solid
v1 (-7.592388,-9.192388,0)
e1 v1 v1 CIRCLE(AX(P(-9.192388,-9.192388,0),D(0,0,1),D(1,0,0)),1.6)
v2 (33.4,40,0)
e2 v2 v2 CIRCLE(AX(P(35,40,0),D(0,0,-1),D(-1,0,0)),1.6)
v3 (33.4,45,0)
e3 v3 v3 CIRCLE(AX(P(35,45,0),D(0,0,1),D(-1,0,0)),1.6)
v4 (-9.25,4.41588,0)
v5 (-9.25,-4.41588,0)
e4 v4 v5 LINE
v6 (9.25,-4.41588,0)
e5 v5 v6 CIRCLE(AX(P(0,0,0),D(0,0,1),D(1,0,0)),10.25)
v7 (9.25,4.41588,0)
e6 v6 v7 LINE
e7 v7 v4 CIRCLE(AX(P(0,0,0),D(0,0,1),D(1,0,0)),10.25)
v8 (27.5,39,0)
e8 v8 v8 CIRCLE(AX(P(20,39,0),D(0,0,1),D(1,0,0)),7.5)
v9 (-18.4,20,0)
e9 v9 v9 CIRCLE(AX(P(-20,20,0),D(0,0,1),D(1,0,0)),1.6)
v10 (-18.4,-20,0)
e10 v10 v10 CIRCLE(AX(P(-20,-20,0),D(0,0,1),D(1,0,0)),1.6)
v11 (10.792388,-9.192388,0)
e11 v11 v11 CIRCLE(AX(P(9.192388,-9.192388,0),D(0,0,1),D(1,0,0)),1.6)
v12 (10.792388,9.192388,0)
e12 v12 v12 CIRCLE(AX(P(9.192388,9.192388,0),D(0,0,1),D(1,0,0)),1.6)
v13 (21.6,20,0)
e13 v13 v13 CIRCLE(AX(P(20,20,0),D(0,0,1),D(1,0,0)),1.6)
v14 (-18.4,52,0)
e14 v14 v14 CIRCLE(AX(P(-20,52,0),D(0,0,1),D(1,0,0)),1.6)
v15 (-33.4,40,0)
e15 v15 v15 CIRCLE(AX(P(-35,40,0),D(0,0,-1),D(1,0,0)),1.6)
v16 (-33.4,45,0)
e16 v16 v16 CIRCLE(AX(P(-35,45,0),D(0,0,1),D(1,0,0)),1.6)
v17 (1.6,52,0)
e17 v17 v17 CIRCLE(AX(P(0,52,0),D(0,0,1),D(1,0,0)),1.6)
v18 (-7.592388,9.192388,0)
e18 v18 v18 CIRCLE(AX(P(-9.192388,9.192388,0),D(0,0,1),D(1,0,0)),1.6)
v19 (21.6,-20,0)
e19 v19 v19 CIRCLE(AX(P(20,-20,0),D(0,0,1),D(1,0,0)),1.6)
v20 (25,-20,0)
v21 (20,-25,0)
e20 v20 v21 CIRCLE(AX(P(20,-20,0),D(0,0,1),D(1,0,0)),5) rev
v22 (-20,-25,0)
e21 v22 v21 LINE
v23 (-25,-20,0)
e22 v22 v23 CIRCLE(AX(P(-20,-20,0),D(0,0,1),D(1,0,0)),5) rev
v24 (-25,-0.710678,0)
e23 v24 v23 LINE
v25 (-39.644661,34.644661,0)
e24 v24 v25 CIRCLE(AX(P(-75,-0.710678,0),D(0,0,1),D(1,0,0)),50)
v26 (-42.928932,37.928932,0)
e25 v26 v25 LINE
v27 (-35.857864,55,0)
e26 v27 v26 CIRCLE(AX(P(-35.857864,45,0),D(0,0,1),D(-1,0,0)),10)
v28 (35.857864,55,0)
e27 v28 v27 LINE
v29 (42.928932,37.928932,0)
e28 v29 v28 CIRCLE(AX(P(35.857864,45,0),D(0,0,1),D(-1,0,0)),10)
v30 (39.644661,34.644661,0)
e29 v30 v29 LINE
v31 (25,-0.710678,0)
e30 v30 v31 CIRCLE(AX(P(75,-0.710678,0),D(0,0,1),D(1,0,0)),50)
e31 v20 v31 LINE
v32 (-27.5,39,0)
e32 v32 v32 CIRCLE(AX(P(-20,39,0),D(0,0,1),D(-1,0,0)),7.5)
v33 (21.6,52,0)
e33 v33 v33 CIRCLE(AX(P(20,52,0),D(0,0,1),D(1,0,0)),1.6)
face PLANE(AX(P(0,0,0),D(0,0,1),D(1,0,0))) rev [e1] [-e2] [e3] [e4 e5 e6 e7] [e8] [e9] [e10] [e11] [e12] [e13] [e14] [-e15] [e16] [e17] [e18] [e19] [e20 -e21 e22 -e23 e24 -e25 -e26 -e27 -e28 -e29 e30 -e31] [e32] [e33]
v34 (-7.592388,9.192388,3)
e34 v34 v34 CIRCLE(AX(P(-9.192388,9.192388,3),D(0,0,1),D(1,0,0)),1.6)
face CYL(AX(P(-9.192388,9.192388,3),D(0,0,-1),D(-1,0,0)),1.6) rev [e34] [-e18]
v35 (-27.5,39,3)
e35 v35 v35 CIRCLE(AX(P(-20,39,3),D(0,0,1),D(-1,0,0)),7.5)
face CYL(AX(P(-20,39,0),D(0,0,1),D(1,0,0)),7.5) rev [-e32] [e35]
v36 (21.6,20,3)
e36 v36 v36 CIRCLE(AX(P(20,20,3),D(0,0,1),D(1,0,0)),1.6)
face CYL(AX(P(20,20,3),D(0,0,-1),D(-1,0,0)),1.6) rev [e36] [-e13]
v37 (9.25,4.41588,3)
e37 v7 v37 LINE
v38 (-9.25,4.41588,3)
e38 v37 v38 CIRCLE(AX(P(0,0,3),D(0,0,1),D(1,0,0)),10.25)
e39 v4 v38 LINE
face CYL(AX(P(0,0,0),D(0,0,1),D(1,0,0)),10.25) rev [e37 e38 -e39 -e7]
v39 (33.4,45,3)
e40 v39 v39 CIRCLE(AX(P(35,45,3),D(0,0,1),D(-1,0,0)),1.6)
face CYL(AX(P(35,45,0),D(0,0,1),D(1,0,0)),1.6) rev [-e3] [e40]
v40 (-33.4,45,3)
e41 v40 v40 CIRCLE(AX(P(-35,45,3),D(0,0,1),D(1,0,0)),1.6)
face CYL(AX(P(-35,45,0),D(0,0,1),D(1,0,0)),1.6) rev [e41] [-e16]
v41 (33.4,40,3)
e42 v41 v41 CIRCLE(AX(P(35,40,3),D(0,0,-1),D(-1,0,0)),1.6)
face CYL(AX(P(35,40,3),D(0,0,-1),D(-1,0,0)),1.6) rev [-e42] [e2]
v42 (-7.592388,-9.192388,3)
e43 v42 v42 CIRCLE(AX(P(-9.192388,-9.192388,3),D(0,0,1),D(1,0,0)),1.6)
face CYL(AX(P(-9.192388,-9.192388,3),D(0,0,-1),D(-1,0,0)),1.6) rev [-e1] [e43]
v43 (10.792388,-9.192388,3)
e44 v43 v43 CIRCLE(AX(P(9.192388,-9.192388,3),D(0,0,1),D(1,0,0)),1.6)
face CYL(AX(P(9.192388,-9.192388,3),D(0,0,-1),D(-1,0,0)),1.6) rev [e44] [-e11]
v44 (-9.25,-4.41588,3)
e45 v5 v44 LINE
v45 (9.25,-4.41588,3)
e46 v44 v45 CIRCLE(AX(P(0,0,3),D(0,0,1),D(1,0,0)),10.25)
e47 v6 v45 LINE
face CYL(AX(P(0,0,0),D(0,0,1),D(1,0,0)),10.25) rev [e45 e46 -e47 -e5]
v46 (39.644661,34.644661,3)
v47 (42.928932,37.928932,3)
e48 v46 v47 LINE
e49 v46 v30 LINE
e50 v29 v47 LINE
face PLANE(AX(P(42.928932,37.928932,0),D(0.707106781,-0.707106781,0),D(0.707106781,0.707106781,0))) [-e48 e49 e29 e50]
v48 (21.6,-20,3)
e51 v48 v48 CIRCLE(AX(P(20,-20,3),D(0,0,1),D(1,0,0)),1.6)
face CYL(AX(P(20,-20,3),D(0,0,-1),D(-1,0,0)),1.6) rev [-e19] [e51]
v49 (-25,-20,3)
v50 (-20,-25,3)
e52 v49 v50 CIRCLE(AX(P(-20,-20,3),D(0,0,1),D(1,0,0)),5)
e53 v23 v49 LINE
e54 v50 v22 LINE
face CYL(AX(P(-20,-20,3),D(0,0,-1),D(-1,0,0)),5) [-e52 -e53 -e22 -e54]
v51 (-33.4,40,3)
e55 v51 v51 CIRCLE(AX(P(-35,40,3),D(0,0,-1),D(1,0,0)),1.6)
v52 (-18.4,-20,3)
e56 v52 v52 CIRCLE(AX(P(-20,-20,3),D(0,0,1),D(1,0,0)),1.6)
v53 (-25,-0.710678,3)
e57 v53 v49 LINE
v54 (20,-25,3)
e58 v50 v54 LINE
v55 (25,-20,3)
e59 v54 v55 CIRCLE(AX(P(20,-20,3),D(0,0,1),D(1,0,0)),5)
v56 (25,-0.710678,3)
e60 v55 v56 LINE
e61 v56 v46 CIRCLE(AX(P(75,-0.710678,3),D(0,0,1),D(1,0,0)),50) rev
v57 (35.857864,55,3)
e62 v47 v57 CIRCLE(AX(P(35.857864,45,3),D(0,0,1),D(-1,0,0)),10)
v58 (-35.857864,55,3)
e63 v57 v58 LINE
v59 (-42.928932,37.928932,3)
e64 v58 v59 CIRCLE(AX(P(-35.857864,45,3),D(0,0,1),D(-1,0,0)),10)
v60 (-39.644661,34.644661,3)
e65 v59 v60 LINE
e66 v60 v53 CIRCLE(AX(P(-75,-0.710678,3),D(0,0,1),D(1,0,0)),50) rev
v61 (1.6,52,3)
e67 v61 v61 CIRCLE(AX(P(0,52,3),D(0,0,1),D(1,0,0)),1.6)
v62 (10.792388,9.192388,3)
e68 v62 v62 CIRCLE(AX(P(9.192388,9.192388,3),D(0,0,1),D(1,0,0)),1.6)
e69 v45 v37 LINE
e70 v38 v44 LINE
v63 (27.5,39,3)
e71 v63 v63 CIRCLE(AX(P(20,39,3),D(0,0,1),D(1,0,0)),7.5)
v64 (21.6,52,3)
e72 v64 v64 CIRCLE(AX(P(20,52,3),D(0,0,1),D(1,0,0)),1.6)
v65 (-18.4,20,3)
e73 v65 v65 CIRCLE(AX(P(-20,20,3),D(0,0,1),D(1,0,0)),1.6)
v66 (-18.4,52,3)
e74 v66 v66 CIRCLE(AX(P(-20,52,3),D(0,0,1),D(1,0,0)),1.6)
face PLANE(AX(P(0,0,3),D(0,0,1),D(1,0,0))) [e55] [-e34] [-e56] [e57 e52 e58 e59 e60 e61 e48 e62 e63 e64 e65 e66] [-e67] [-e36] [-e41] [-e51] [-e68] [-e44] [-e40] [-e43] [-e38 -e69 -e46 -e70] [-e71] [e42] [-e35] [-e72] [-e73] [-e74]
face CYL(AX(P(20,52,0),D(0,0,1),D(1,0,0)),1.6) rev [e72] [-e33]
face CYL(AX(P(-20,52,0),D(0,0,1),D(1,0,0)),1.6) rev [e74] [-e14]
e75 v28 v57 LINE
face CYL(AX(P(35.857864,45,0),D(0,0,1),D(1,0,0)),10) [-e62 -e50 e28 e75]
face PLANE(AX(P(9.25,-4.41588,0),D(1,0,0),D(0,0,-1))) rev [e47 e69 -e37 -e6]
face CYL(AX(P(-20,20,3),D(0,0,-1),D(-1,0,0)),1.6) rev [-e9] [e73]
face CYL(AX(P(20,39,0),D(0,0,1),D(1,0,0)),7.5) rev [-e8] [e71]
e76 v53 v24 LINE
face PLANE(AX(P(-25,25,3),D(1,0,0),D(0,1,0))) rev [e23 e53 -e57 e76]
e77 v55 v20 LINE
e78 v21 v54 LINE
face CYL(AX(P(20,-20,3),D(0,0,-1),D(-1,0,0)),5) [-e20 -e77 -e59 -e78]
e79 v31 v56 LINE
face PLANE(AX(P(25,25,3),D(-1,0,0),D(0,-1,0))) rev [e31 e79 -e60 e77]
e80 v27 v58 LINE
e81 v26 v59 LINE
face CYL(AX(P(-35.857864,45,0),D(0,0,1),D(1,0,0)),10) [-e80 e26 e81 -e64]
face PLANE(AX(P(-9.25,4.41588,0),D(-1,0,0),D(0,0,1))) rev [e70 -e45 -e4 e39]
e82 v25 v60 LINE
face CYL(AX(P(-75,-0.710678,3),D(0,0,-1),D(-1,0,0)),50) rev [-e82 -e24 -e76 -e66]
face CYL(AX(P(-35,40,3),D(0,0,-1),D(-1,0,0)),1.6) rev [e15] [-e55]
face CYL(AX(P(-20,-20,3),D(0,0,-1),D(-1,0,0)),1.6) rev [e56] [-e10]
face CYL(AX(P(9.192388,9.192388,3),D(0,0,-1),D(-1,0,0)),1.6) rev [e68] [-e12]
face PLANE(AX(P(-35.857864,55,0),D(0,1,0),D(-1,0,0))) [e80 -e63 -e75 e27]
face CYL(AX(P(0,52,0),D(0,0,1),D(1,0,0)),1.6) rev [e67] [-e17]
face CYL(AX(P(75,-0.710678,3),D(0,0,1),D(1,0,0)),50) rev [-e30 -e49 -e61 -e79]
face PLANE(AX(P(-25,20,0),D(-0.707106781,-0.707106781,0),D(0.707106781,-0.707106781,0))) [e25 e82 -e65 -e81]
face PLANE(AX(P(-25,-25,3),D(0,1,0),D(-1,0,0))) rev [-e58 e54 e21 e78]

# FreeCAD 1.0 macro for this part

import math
import FreeCAD as App
import Part
import Sketcher
Q = App.Units.Quantity


def edges_at(feature, points):
    """Names of the edges that pass closest to the given points."""
    edges = feature.Shape.Edges
    near = lambda p: min(range(len(edges)), key=lambda i: edges[i].distToShape(Part.Vertex(*p))[0])
    return sorted({f"Edge{near(p) + 1}" for p in points})


def add_polygon(sketch, points):
    """Adds a closed chain of lines whose ends are joined by coincident constraints."""
    first, n = sketch.GeometryCount, len(points)
    for a, b in zip(points, points[1:] + points[:1]):
        sketch.addGeometry(Part.LineSegment(App.Vector(*a, 0), App.Vector(*b, 0)), False)
    for i in range(n):
        sketch.addConstraint(Sketcher.Constraint("Coincident", first + i, 2, first + (i + 1) % n, 1))

doc = App.newDocument("Part")
body = doc.addObject("PartDesign::Body", "Body")

sketch1 = body.newObject("Sketcher::SketchObject", "Sketch")
sketch1.AttachmentSupport = (doc.getObject("XY_Plane"), [""])
sketch1.MapMode = "FlatFace"
add_polygon(sketch1, [(-25, 25), (-25, -25), (25, -25), (25, 25)])
sketch1.addGeometry(Part.Circle(App.Vector(-20, -20, 0), App.Vector(0, 0, 1), 1.6), False)
sketch1.addGeometry(Part.Circle(App.Vector(-9.2, -9.2, 0), App.Vector(0, 0, 1), 1.6), False)
sketch1.addGeometry(Part.Circle(App.Vector(20, -20, 0), App.Vector(0, 0, 1), 1.6), False)
sketch1.addGeometry(Part.Circle(App.Vector(9.2, -9.2, 0), App.Vector(0, 0, 1), 1.6), False)
sketch1.addGeometry(Part.Circle(App.Vector(-9.2, 9.2, 0), App.Vector(0, 0, 1), 1.6), False)
sketch1.addGeometry(Part.Circle(App.Vector(-20, 20, 0), App.Vector(0, 0, 1), 1.6), False)
sketch1.addGeometry(Part.Circle(App.Vector(9.2, 9.2, 0), App.Vector(0, 0, 1), 1.6), False)
sketch1.addGeometry(Part.Circle(App.Vector(20, 20, 0), App.Vector(0, 0, 1), 1.6), False)
sketch1.addConstraint(Sketcher.Constraint("Vertical", 0))
sketch1.addConstraint(Sketcher.Constraint("Horizontal", 1))
sketch1.addConstraint(Sketcher.Constraint("Vertical", 2))
sketch1.addConstraint(Sketcher.Constraint("Horizontal", 3))
sketch1.addConstraint(Sketcher.Constraint("Equal", 4, 5))
sketch1.addConstraint(Sketcher.Constraint("Equal", 5, 6))
sketch1.addConstraint(Sketcher.Constraint("Equal", 6, 7))
sketch1.addConstraint(Sketcher.Constraint("Equal", 7, 8))
sketch1.addConstraint(Sketcher.Constraint("Equal", 8, 9))
sketch1.addConstraint(Sketcher.Constraint("Equal", 9, 10))
sketch1.addConstraint(Sketcher.Constraint("Equal", 10, 11))
sketch1.addConstraint(Sketcher.Constraint("Symmetric", 7, 3, 8, 3, -1, 1))
sketch1.addConstraint(Sketcher.Constraint("Symmetric", 6, 3, 9, 3, -1, 1))
sketch1.addConstraint(Sketcher.Constraint("Symmetric", 5, 3, 10, 3, -1, 1))
sketch1.addConstraint(Sketcher.Constraint("Symmetric", 4, 3, 11, 3, -1, 1))
sketch1.addConstraint(Sketcher.Constraint("Symmetric", 0, 2, 2, 2, -1, 1))
sketch1.addConstraint(Sketcher.Constraint("Symmetric", 4, 3, 6, 3, -2))
sketch1.addConstraint(Sketcher.Constraint("Symmetric", 5, 3, 7, 3, -2))
sketch1.addConstraint(Sketcher.Constraint("Equal", 3, 0))
sketch1.addConstraint(Sketcher.Constraint("Diameter", 4, Q("3.2 mm")))
sketch1.addConstraint(Sketcher.Constraint("DistanceX", 1, 1, 1, 2, Q("50 mm")))
sketch1.addConstraint(Sketcher.Constraint("DistanceX", 4, 3, -1, 1, Q("20 mm")))
sketch1.addConstraint(Sketcher.Constraint("DistanceY", 4, 3, -1, 1, Q("20 mm")))
sketch1.addConstraint(Sketcher.Constraint("DistanceX", 5, 3, -1, 1, Q("9.192388 mm")))
sketch1.addConstraint(Sketcher.Constraint("DistanceY", 5, 3, -1, 1, Q("9.192388 mm")))
pad1 = body.newObject("PartDesign::Pad", "Pad")
pad1.Profile = sketch1
pad1.Length = 3
doc.recompute()

fillet = body.newObject("PartDesign::Fillet", "Fillet")
fillet.Base = (pad1, edges_at(pad1, [
    (25, -25, 1.5),
    (-25, -25, 1.5),
    (-25, 25, 1.5),
    (25, 25, 1.5),
]))
fillet.Radius = 5

sketch2 = body.newObject("Sketcher::SketchObject", "Sketch001")
sketch2.AttachmentSupport = (doc.getObject("XY_Plane"), [""])
sketch2.MapMode = "FlatFace"
sketch2.AttachmentOffset = App.Placement(App.Vector(0, 0, 3), App.Rotation())
sketch2.addGeometry(Part.LineSegment(App.Vector(-9, 4, 0), App.Vector(-9, -4, 0)), False)
sketch2.addGeometry(Part.ArcOfCircle(Part.Circle(App.Vector(0, 0, 0), App.Vector(0, 0, 1), 10), math.radians(-154), math.radians(-26)), False)
sketch2.addGeometry(Part.LineSegment(App.Vector(9, -4, 0), App.Vector(9, 4, 0)), False)
sketch2.addGeometry(Part.ArcOfCircle(Part.Circle(App.Vector(0, 0, 0), App.Vector(0, 0, 1), 10), math.radians(26), math.radians(154)), False)
sketch2.addConstraint(Sketcher.Constraint("Coincident", 0, 2, 1, 1))
sketch2.addConstraint(Sketcher.Constraint("Coincident", 1, 2, 2, 1))
sketch2.addConstraint(Sketcher.Constraint("Coincident", 2, 2, 3, 1))
sketch2.addConstraint(Sketcher.Constraint("Coincident", 3, 2, 0, 1))
sketch2.addConstraint(Sketcher.Constraint("Vertical", 0))
sketch2.addConstraint(Sketcher.Constraint("Vertical", 2))
sketch2.addConstraint(Sketcher.Constraint("Coincident", 1, 3, -1, 1))
sketch2.addConstraint(Sketcher.Constraint("Coincident", 3, 3, -1, 1))
sketch2.addConstraint(Sketcher.Constraint("Equal", 1, 3))
sketch2.addConstraint(Sketcher.Constraint("Horizontal", 0, 2, 1, 2))
sketch2.addConstraint(Sketcher.Constraint("Radius", 1, Q("10.25 mm")))
sketch2.addConstraint(Sketcher.Constraint("DistanceX", 0, 2, 1, 2, Q("18.5 mm")))
pocket1 = body.newObject("PartDesign::Pocket", "Pocket")
pocket1.Profile = sketch2
pocket1.Type = "ThroughAll"

sketch3 = body.newObject("Sketcher::SketchObject", "Sketch002")
sketch3.AttachmentSupport = (doc.getObject("XY_Plane"), [""])
sketch3.MapMode = "FlatFace"
sketch3.AttachmentOffset = App.Placement(App.Vector(0, 0, 3), App.Rotation())
sketch3.addGeometry(Part.LineSegment(App.Vector(-43, 38, 0), App.Vector(-25, 20, 0)), False)
sketch3.addGeometry(Part.ArcOfCircle(Part.Circle(App.Vector(-20, 20, 0), App.Vector(0, 0, 1), 5), math.radians(90), math.radians(180)), False)
sketch3.addGeometry(Part.LineSegment(App.Vector(-20, 25, 0), App.Vector(20, 25, 0)), False)
sketch3.addGeometry(Part.ArcOfCircle(Part.Circle(App.Vector(20, 20, 0), App.Vector(0, 0, 1), 5), math.radians(0), math.radians(90)), False)
sketch3.addGeometry(Part.LineSegment(App.Vector(25, 20, 0), App.Vector(43, 38, 0)), False)
sketch3.addGeometry(Part.ArcOfCircle(Part.Circle(App.Vector(36, 45, 0), App.Vector(0, 0, 1), 10), math.radians(-45), math.radians(90)), False)
sketch3.addGeometry(Part.LineSegment(App.Vector(36, 55, 0), App.Vector(-36, 55, 0)), False)
sketch3.addGeometry(Part.ArcOfCircle(Part.Circle(App.Vector(-36, 45, 0), App.Vector(0, 0, 1), 10), math.radians(90), math.radians(225)), False)
sketch3.addConstraint(Sketcher.Constraint("Coincident", 0, 2, 1, 2))
sketch3.addConstraint(Sketcher.Constraint("Tangent", 1, 1, 2, 1))
sketch3.addConstraint(Sketcher.Constraint("Tangent", 2, 2, 3, 2))
sketch3.addConstraint(Sketcher.Constraint("Coincident", 3, 1, 4, 1))
sketch3.addConstraint(Sketcher.Constraint("Tangent", 4, 2, 5, 1))
sketch3.addConstraint(Sketcher.Constraint("Tangent", 5, 2, 6, 1))
sketch3.addConstraint(Sketcher.Constraint("Tangent", 6, 2, 7, 1))
sketch3.addConstraint(Sketcher.Constraint("Tangent", 7, 2, 0, 1))
sketch3.addConstraint(Sketcher.Constraint("Horizontal", 2))
sketch3.addConstraint(Sketcher.Constraint("Horizontal", 6))
sketch3.addConstraint(Sketcher.Constraint("Equal", 1, 3))
sketch3.addConstraint(Sketcher.Constraint("Equal", 5, 7))
sketch3.addConstraint(Sketcher.Constraint("Symmetric", 0, 2, 3, 1, -2))
sketch3.addConstraint(Sketcher.Constraint("Perpendicular", 0, 4))
sketch3.addConstraint(Sketcher.Constraint("Horizontal", 3, 3, 0, 2))
sketch3.addConstraint(Sketcher.Constraint("Horizontal", 4, 2, 7, 2))
sketch3.addConstraint(Sketcher.Constraint("Radius", 1, Q("5 mm")))
sketch3.addConstraint(Sketcher.Constraint("Radius", 5, Q("10 mm")))
sketch3.addConstraint(Sketcher.Constraint("DistanceX", 2, 1, 2, 2, Q("40 mm")))
sketch3.addConstraint(Sketcher.Constraint("DistanceY", -1, 1, 1, 3, Q("20 mm")))
sketch3.addConstraint(Sketcher.Constraint("DistanceY", -1, 1, 5, 3, Q("45 mm")))
pad2 = body.newObject("PartDesign::Pad", "Pad001")
pad2.Profile = sketch3
pad2.Length = 3
pad2.Reversed = True
doc.recompute()

fillet2 = body.newObject("PartDesign::Fillet", "Fillet001")
fillet2.Base = (pad2, edges_at(pad2, [(25, 20, 1.5), (-25, 20, 1.5)]))
fillet2.Radius = 50

sketch4 = body.newObject("Sketcher::SketchObject", "Sketch003")
sketch4.AttachmentSupport = (doc.getObject("XY_Plane"), [""])
sketch4.MapMode = "FlatFace"
sketch4.AttachmentOffset = App.Placement(App.Vector(0, 0, 3), App.Rotation())
sketch4.addGeometry(Part.Circle(App.Vector(-35, 45, 0), App.Vector(0, 0, 1), 1.6), False)
sketch4.addGeometry(Part.Circle(App.Vector(35, 45, 0), App.Vector(0, 0, 1), 1.6), False)
sketch4.addConstraint(Sketcher.Constraint("Equal", 0, 1))
sketch4.addConstraint(Sketcher.Constraint("Symmetric", 0, 3, 1, 3, -2))
sketch4.addConstraint(Sketcher.Constraint("Diameter", 0, Q("3.2 mm")))
sketch4.addConstraint(Sketcher.Constraint("DistanceX", 0, 3, -1, 1, Q("35 mm")))
sketch4.addConstraint(Sketcher.Constraint("DistanceY", -1, 1, 0, 3, Q("45 mm")))
pocket2 = body.newObject("PartDesign::Pocket", "Pocket001")
pocket2.Profile = sketch4
pocket2.Type = "ThroughAll"

sketch5 = body.newObject("Sketcher::SketchObject", "Sketch004")
sketch5.AttachmentSupport = (doc.getObject("XY_Plane"), [""])
sketch5.MapMode = "FlatFace"
sketch5.AttachmentOffset = App.Placement(App.Vector(0, 0, 3), App.Rotation())
sketch5.addGeometry(Part.Circle(App.Vector(20, 39, 0), App.Vector(0, 0, 1), 8), False)
sketch5.addGeometry(Part.Circle(App.Vector(-20, 39, 0), App.Vector(0, 0, 1), 8), False)
sketch5.addConstraint(Sketcher.Constraint("Equal", 0, 1))
sketch5.addConstraint(Sketcher.Constraint("Symmetric", 0, 3, 1, 3, -2))
sketch5.addConstraint(Sketcher.Constraint("Diameter", 0, Q("15 mm")))
sketch5.addConstraint(Sketcher.Constraint("DistanceX", -1, 1, 0, 3, Q("20 mm")))
sketch5.addConstraint(Sketcher.Constraint("DistanceY", -1, 1, 0, 3, Q("39 mm")))
pocket3 = body.newObject("PartDesign::Pocket", "Pocket002")
pocket3.Profile = sketch5
pocket3.Type = "ThroughAll"

sketch6 = body.newObject("Sketcher::SketchObject", "Sketch005")
sketch6.AttachmentSupport = (doc.getObject("XY_Plane"), [""])
sketch6.MapMode = "FlatFace"
sketch6.addGeometry(Part.Circle(App.Vector(35, 40, 0), App.Vector(0, 0, 1), 1.6), False)
sketch6.addGeometry(Part.Circle(App.Vector(-35, 40, 0), App.Vector(0, 0, 1), 1.6), False)
sketch6.addConstraint(Sketcher.Constraint("Equal", 0, 1))
sketch6.addConstraint(Sketcher.Constraint("Symmetric", 0, 3, 1, 3, -2))
sketch6.addConstraint(Sketcher.Constraint("Diameter", 0, Q("3.2 mm")))
sketch6.addConstraint(Sketcher.Constraint("DistanceX", -1, 1, 0, 3, Q("35 mm")))
sketch6.addConstraint(Sketcher.Constraint("DistanceY", -1, 1, 0, 3, Q("40 mm")))
pocket4 = body.newObject("PartDesign::Pocket", "Pocket003")
pocket4.Profile = sketch6
pocket4.Type = "ThroughAll"
pocket4.Reversed = True

sketch7 = body.newObject("Sketcher::SketchObject", "Sketch006")
sketch7.AttachmentSupport = (doc.getObject("XY_Plane"), [""])
sketch7.MapMode = "FlatFace"
sketch7.AttachmentOffset = App.Placement(App.Vector(0, 0, 3), App.Rotation())
sketch7.addGeometry(Part.Circle(App.Vector(0, 52, 0), App.Vector(0, 0, 1), 1.6), False)
sketch7.addGeometry(Part.Circle(App.Vector(20, 52, 0), App.Vector(0, 0, 1), 1.6), False)
sketch7.addGeometry(Part.Circle(App.Vector(-20, 52, 0), App.Vector(0, 0, 1), 1.6), False)
sketch7.addConstraint(Sketcher.Constraint("Equal", 0, 1))
sketch7.addConstraint(Sketcher.Constraint("Equal", 1, 2))
sketch7.addConstraint(Sketcher.Constraint("Symmetric", 1, 3, 2, 3, -2))
sketch7.addConstraint(Sketcher.Constraint("PointOnObject", 0, 3, -2))
sketch7.addConstraint(Sketcher.Constraint("Horizontal", 0, 3, 1, 3))
sketch7.addConstraint(Sketcher.Constraint("Diameter", 0, Q("3.2 mm")))
sketch7.addConstraint(Sketcher.Constraint("DistanceY", -1, 1, 0, 3, Q("52 mm")))
sketch7.addConstraint(Sketcher.Constraint("DistanceX", -1, 1, 1, 3, Q("20 mm")))
pocket5 = body.newObject("PartDesign::Pocket", "Pocket004")
pocket5.Profile = sketch7
pocket5.Type = "ThroughAll"

doc.recompute()
